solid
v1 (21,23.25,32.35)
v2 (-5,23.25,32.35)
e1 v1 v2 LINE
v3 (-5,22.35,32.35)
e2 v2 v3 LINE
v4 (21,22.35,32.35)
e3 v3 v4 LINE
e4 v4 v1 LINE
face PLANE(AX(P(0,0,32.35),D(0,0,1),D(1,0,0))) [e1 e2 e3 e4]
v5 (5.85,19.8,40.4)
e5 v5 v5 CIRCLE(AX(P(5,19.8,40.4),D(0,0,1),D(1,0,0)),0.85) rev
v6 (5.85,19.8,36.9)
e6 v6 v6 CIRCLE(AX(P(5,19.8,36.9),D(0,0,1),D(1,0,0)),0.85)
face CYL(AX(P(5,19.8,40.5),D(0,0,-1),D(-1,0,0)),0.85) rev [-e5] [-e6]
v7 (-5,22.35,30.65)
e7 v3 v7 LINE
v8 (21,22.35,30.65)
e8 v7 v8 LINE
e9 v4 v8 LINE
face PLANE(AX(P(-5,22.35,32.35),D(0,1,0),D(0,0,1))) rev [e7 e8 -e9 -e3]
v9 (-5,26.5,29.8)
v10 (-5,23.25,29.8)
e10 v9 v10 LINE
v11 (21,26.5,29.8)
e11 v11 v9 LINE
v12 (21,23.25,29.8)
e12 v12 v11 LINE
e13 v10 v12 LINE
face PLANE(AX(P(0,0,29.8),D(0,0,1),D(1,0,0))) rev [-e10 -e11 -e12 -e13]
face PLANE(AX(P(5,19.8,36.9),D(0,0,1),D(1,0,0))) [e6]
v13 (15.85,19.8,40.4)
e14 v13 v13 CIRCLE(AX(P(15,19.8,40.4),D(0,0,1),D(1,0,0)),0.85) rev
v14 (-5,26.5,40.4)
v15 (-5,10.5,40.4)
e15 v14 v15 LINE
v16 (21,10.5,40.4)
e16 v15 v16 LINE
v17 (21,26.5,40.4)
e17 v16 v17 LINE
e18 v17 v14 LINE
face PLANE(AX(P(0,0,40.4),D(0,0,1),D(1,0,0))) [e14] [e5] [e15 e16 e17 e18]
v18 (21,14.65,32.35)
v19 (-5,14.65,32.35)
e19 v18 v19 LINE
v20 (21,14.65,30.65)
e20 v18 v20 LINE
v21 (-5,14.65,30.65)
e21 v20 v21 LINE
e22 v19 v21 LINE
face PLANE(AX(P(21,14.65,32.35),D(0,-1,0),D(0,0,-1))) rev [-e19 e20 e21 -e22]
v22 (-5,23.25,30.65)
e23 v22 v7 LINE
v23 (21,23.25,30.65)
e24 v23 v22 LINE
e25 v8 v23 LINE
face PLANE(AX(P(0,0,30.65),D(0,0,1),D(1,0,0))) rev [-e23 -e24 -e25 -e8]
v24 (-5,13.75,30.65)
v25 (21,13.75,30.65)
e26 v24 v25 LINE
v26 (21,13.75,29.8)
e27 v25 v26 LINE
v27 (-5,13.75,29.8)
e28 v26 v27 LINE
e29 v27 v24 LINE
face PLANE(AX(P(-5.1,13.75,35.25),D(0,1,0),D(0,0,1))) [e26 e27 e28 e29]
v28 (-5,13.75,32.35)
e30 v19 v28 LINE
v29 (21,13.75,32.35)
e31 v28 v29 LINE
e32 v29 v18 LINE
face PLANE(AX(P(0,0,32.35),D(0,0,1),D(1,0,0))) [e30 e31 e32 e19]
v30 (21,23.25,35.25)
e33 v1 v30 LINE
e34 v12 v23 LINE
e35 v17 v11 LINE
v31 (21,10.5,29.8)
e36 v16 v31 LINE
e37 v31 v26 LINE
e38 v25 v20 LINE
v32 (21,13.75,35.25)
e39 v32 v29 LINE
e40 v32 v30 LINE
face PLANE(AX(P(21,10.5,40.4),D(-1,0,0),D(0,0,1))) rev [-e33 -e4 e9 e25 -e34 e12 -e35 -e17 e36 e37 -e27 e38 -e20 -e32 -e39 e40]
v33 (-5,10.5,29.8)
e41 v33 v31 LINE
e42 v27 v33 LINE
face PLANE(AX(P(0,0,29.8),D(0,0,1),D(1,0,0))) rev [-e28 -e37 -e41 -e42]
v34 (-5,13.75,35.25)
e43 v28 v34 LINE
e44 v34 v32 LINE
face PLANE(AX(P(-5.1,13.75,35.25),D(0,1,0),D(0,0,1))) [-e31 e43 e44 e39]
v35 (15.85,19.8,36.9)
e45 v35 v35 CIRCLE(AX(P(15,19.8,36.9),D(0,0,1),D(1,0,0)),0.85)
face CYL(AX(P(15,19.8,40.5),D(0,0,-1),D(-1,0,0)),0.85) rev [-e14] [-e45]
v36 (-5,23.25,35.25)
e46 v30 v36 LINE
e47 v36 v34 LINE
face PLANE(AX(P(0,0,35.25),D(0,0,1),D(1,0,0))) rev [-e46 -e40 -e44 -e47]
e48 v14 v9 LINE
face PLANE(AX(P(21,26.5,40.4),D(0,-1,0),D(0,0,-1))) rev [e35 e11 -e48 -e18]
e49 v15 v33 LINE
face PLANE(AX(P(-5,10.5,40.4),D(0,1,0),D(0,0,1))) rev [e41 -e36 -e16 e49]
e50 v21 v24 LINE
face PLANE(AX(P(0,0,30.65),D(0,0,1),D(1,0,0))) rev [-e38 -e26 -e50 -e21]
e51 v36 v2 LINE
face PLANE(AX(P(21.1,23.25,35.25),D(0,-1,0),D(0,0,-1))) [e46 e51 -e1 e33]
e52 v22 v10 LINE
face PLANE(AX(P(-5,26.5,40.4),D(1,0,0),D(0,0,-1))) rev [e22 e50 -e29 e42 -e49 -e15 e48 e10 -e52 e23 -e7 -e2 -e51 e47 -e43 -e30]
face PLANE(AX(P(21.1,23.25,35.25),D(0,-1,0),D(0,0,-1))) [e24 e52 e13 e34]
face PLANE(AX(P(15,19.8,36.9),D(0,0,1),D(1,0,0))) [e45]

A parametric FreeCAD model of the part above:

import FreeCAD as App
import Part
import Sketcher
from FreeCAD import Vector
Q = App.Units.Quantity

doc = App.newDocument("Part")
body = doc.addObject("PartDesign::Body", "Body")

# Sketch on XY plane
sketch1 = body.newObject("Sketcher::SketchObject", "Sketch")
sketch1.AttachmentSupport = (doc.getObject("XY_Plane"), [""])
sketch1.MapMode = "FlatFace"
sketch1.AttachmentOffset = App.Placement(Vector(0, 0, 29.8), App.Rotation())
sketch1.addGeometry([
    Part.LineSegment(Vector(-5, 26.5, 0), Vector(-5, 10.5, 0)),
    Part.LineSegment(Vector(-5, 10.5, 0), Vector(21, 10.5, 0)),
    Part.LineSegment(Vector(21, 10.5, 0), Vector(21, 26.5, 0)),
    Part.LineSegment(Vector(21, 26.5, 0), Vector(-5, 26.5, 0)),
], False)
sketch1.addConstraint([
    Sketcher.Constraint("Coincident", 0, 2, 1, 1),
    Sketcher.Constraint("Coincident", 1, 2, 2, 1),
    Sketcher.Constraint("Coincident", 2, 2, 3, 1),
    Sketcher.Constraint("Coincident", 3, 2, 0, 1),
    Sketcher.Constraint("Vertical", 0),
    Sketcher.Constraint("Horizontal", 1),
    Sketcher.Constraint("Vertical", 2),
    Sketcher.Constraint("Horizontal", 3),
    Sketcher.Constraint("DistanceX", 1, 1, 1, 2, Q("26 mm")),
    Sketcher.Constraint("DistanceY", 0, 2, 0, 1, Q("16 mm")),
    Sketcher.Constraint("DistanceX", 0, 2, -1, 1, Q("5 mm")),
    Sketcher.Constraint("DistanceY", -1, 1, 0, 2, Q("10.5 mm")),
])
pad1 = body.newObject("PartDesign::Pad", "Pad")
pad1.Profile = sketch1
pad1.Length = 10.6

# Sketch on XY plane
sketch2 = body.newObject("Sketcher::SketchObject", "Sketch001")
sketch2.AttachmentSupport = (doc.getObject("XY_Plane"), [""])
sketch2.MapMode = "FlatFace"
sketch2.AttachmentOffset = App.Placement(Vector(0, 0, 29.7), App.Rotation())
sketch2.addGeometry([
    Part.LineSegment(Vector(-5.1, 23.25, 0), Vector(-5.1, 13.75, 0)),
    Part.LineSegment(Vector(-5.1, 13.75, 0), Vector(21.1, 13.75, 0)),
    Part.LineSegment(Vector(21.1, 13.75, 0), Vector(21.1, 23.25, 0)),
    Part.LineSegment(Vector(21.1, 23.25, 0), Vector(-5.1, 23.25, 0)),
], False)
sketch2.addConstraint([
    Sketcher.Constraint("Coincident", 0, 2, 1, 1),
    Sketcher.Constraint("Coincident", 1, 2, 2, 1),
    Sketcher.Constraint("Coincident", 2, 2, 3, 1),
    Sketcher.Constraint("Coincident", 3, 2, 0, 1),
    Sketcher.Constraint("Vertical", 0),
    Sketcher.Constraint("Horizontal", 1),
    Sketcher.Constraint("Vertical", 2),
    Sketcher.Constraint("Horizontal", 3),
    Sketcher.Constraint("DistanceX", 1, 1, 1, 2, Q("26.2 mm")),
    Sketcher.Constraint("DistanceY", 0, 2, 0, 1, Q("9.5 mm")),
    Sketcher.Constraint("DistanceX", 0, 2, -1, 1, Q("5.1 mm")),
    Sketcher.Constraint("DistanceY", -1, 1, 0, 2, Q("13.75 mm")),
])
pocket1 = body.newObject("PartDesign::Pocket", "Pocket")
pocket1.Profile = sketch2
pocket1.Length = 5.55
pocket1.Reversed = True

# Sketch on XY plane
sketch3 = body.newObject("Sketcher::SketchObject", "Sketch002")
sketch3.AttachmentSupport = (doc.getObject("XY_Plane"), [""])
sketch3.MapMode = "FlatFace"
sketch3.AttachmentOffset = App.Placement(Vector(0, 0, 30.65), App.Rotation())
sketch3.addGeometry([
    Part.LineSegment(Vector(-5, 14.65, 0), Vector(-5, 13.65, 0)),  # 0
    Part.LineSegment(Vector(-5, 13.65, 0), Vector(21, 13.65, 0)),  # 1
    Part.LineSegment(Vector(21, 13.65, 0), Vector(21, 14.65, 0)),  # 2
    Part.LineSegment(Vector(21, 14.65, 0), Vector(-5, 14.65, 0)),  # 3
    Part.LineSegment(Vector(-5, 23.35, 0), Vector(-5, 22.35, 0)),  # 4
    Part.LineSegment(Vector(-5, 22.35, 0), Vector(21, 22.35, 0)),  # 5
    Part.LineSegment(Vector(21, 22.35, 0), Vector(21, 23.35, 0)),  # 6
    Part.LineSegment(Vector(21, 23.35, 0), Vector(-5, 23.35, 0)),  # 7
], False)
sketch3.addConstraint([
    Sketcher.Constraint("Coincident", 0, 2, 1, 1),
    Sketcher.Constraint("Coincident", 1, 2, 2, 1),
    Sketcher.Constraint("Coincident", 2, 2, 3, 1),
    Sketcher.Constraint("Coincident", 3, 2, 0, 1),
    Sketcher.Constraint("Coincident", 4, 2, 5, 1),
    Sketcher.Constraint("Coincident", 5, 2, 6, 1),
    Sketcher.Constraint("Coincident", 6, 2, 7, 1),
    Sketcher.Constraint("Coincident", 7, 2, 4, 1),
    Sketcher.Constraint("Vertical", 0),
    Sketcher.Constraint("Horizontal", 1),
    Sketcher.Constraint("Vertical", 2),
    Sketcher.Constraint("Horizontal", 3),
    Sketcher.Constraint("Vertical", 4),
    Sketcher.Constraint("Horizontal", 5),
    Sketcher.Constraint("Vertical", 6),
    Sketcher.Constraint("Horizontal", 7),
    Sketcher.Constraint("Vertical", 3, 2, 4, 2),
    Sketcher.Constraint("Vertical", 2, 2, 5, 2),
    Sketcher.Constraint("Equal", 2, 4),
    Sketcher.Constraint("DistanceX", 1, 1, 1, 2, Q("26 mm")),
    Sketcher.Constraint("DistanceY", 0, 2, 0, 1, Q("1 mm")),
    Sketcher.Constraint("DistanceX", 0, 2, -1, 1, Q("5 mm")),
    Sketcher.Constraint("DistanceY", 3, 2, 4, 2, Q("7.7 mm")),
    Sketcher.Constraint("DistanceY", -1, 1, 0, 2, Q("13.65 mm")),
])
pad2 = body.newObject("PartDesign::Pad", "Pad001")
pad2.Profile = sketch3
pad2.Length = 1.7

# Sketch on XY plane
sketch4 = body.newObject("Sketcher::SketchObject", "Sketch003")
sketch4.AttachmentSupport = (doc.getObject("XY_Plane"), [""])
sketch4.MapMode = "FlatFace"
sketch4.AttachmentOffset = App.Placement(Vector(0, 0, 36.9), App.Rotation())
sketch4.addGeometry([
    Part.Circle(Vector(5, 19.8, 0), Vector(0, 0, 1), 0.85),
    Part.Circle(Vector(15, 19.8, 0), Vector(0, 0, 1), 0.85),
], False)
sketch4.addConstraint([
    Sketcher.Constraint("Equal", 0, 1),
    Sketcher.Constraint("Horizontal", 0, 3, 1, 3),
    Sketcher.Constraint("Diameter", 0, Q("1.7 mm")),
    Sketcher.Constraint("DistanceX", -1, 1, 0, 3, Q("5 mm")),
    Sketcher.Constraint("DistanceX", -1, 1, 1, 3, Q("15 mm")),
    Sketcher.Constraint("DistanceY", -1, 1, 0, 3, Q("19.8 mm")),
])
pocket2 = body.newObject("PartDesign::Pocket", "Pocket001")
pocket2.Profile = sketch4
pocket2.Length = 3.6
pocket2.Reversed = True

doc.recompute()
